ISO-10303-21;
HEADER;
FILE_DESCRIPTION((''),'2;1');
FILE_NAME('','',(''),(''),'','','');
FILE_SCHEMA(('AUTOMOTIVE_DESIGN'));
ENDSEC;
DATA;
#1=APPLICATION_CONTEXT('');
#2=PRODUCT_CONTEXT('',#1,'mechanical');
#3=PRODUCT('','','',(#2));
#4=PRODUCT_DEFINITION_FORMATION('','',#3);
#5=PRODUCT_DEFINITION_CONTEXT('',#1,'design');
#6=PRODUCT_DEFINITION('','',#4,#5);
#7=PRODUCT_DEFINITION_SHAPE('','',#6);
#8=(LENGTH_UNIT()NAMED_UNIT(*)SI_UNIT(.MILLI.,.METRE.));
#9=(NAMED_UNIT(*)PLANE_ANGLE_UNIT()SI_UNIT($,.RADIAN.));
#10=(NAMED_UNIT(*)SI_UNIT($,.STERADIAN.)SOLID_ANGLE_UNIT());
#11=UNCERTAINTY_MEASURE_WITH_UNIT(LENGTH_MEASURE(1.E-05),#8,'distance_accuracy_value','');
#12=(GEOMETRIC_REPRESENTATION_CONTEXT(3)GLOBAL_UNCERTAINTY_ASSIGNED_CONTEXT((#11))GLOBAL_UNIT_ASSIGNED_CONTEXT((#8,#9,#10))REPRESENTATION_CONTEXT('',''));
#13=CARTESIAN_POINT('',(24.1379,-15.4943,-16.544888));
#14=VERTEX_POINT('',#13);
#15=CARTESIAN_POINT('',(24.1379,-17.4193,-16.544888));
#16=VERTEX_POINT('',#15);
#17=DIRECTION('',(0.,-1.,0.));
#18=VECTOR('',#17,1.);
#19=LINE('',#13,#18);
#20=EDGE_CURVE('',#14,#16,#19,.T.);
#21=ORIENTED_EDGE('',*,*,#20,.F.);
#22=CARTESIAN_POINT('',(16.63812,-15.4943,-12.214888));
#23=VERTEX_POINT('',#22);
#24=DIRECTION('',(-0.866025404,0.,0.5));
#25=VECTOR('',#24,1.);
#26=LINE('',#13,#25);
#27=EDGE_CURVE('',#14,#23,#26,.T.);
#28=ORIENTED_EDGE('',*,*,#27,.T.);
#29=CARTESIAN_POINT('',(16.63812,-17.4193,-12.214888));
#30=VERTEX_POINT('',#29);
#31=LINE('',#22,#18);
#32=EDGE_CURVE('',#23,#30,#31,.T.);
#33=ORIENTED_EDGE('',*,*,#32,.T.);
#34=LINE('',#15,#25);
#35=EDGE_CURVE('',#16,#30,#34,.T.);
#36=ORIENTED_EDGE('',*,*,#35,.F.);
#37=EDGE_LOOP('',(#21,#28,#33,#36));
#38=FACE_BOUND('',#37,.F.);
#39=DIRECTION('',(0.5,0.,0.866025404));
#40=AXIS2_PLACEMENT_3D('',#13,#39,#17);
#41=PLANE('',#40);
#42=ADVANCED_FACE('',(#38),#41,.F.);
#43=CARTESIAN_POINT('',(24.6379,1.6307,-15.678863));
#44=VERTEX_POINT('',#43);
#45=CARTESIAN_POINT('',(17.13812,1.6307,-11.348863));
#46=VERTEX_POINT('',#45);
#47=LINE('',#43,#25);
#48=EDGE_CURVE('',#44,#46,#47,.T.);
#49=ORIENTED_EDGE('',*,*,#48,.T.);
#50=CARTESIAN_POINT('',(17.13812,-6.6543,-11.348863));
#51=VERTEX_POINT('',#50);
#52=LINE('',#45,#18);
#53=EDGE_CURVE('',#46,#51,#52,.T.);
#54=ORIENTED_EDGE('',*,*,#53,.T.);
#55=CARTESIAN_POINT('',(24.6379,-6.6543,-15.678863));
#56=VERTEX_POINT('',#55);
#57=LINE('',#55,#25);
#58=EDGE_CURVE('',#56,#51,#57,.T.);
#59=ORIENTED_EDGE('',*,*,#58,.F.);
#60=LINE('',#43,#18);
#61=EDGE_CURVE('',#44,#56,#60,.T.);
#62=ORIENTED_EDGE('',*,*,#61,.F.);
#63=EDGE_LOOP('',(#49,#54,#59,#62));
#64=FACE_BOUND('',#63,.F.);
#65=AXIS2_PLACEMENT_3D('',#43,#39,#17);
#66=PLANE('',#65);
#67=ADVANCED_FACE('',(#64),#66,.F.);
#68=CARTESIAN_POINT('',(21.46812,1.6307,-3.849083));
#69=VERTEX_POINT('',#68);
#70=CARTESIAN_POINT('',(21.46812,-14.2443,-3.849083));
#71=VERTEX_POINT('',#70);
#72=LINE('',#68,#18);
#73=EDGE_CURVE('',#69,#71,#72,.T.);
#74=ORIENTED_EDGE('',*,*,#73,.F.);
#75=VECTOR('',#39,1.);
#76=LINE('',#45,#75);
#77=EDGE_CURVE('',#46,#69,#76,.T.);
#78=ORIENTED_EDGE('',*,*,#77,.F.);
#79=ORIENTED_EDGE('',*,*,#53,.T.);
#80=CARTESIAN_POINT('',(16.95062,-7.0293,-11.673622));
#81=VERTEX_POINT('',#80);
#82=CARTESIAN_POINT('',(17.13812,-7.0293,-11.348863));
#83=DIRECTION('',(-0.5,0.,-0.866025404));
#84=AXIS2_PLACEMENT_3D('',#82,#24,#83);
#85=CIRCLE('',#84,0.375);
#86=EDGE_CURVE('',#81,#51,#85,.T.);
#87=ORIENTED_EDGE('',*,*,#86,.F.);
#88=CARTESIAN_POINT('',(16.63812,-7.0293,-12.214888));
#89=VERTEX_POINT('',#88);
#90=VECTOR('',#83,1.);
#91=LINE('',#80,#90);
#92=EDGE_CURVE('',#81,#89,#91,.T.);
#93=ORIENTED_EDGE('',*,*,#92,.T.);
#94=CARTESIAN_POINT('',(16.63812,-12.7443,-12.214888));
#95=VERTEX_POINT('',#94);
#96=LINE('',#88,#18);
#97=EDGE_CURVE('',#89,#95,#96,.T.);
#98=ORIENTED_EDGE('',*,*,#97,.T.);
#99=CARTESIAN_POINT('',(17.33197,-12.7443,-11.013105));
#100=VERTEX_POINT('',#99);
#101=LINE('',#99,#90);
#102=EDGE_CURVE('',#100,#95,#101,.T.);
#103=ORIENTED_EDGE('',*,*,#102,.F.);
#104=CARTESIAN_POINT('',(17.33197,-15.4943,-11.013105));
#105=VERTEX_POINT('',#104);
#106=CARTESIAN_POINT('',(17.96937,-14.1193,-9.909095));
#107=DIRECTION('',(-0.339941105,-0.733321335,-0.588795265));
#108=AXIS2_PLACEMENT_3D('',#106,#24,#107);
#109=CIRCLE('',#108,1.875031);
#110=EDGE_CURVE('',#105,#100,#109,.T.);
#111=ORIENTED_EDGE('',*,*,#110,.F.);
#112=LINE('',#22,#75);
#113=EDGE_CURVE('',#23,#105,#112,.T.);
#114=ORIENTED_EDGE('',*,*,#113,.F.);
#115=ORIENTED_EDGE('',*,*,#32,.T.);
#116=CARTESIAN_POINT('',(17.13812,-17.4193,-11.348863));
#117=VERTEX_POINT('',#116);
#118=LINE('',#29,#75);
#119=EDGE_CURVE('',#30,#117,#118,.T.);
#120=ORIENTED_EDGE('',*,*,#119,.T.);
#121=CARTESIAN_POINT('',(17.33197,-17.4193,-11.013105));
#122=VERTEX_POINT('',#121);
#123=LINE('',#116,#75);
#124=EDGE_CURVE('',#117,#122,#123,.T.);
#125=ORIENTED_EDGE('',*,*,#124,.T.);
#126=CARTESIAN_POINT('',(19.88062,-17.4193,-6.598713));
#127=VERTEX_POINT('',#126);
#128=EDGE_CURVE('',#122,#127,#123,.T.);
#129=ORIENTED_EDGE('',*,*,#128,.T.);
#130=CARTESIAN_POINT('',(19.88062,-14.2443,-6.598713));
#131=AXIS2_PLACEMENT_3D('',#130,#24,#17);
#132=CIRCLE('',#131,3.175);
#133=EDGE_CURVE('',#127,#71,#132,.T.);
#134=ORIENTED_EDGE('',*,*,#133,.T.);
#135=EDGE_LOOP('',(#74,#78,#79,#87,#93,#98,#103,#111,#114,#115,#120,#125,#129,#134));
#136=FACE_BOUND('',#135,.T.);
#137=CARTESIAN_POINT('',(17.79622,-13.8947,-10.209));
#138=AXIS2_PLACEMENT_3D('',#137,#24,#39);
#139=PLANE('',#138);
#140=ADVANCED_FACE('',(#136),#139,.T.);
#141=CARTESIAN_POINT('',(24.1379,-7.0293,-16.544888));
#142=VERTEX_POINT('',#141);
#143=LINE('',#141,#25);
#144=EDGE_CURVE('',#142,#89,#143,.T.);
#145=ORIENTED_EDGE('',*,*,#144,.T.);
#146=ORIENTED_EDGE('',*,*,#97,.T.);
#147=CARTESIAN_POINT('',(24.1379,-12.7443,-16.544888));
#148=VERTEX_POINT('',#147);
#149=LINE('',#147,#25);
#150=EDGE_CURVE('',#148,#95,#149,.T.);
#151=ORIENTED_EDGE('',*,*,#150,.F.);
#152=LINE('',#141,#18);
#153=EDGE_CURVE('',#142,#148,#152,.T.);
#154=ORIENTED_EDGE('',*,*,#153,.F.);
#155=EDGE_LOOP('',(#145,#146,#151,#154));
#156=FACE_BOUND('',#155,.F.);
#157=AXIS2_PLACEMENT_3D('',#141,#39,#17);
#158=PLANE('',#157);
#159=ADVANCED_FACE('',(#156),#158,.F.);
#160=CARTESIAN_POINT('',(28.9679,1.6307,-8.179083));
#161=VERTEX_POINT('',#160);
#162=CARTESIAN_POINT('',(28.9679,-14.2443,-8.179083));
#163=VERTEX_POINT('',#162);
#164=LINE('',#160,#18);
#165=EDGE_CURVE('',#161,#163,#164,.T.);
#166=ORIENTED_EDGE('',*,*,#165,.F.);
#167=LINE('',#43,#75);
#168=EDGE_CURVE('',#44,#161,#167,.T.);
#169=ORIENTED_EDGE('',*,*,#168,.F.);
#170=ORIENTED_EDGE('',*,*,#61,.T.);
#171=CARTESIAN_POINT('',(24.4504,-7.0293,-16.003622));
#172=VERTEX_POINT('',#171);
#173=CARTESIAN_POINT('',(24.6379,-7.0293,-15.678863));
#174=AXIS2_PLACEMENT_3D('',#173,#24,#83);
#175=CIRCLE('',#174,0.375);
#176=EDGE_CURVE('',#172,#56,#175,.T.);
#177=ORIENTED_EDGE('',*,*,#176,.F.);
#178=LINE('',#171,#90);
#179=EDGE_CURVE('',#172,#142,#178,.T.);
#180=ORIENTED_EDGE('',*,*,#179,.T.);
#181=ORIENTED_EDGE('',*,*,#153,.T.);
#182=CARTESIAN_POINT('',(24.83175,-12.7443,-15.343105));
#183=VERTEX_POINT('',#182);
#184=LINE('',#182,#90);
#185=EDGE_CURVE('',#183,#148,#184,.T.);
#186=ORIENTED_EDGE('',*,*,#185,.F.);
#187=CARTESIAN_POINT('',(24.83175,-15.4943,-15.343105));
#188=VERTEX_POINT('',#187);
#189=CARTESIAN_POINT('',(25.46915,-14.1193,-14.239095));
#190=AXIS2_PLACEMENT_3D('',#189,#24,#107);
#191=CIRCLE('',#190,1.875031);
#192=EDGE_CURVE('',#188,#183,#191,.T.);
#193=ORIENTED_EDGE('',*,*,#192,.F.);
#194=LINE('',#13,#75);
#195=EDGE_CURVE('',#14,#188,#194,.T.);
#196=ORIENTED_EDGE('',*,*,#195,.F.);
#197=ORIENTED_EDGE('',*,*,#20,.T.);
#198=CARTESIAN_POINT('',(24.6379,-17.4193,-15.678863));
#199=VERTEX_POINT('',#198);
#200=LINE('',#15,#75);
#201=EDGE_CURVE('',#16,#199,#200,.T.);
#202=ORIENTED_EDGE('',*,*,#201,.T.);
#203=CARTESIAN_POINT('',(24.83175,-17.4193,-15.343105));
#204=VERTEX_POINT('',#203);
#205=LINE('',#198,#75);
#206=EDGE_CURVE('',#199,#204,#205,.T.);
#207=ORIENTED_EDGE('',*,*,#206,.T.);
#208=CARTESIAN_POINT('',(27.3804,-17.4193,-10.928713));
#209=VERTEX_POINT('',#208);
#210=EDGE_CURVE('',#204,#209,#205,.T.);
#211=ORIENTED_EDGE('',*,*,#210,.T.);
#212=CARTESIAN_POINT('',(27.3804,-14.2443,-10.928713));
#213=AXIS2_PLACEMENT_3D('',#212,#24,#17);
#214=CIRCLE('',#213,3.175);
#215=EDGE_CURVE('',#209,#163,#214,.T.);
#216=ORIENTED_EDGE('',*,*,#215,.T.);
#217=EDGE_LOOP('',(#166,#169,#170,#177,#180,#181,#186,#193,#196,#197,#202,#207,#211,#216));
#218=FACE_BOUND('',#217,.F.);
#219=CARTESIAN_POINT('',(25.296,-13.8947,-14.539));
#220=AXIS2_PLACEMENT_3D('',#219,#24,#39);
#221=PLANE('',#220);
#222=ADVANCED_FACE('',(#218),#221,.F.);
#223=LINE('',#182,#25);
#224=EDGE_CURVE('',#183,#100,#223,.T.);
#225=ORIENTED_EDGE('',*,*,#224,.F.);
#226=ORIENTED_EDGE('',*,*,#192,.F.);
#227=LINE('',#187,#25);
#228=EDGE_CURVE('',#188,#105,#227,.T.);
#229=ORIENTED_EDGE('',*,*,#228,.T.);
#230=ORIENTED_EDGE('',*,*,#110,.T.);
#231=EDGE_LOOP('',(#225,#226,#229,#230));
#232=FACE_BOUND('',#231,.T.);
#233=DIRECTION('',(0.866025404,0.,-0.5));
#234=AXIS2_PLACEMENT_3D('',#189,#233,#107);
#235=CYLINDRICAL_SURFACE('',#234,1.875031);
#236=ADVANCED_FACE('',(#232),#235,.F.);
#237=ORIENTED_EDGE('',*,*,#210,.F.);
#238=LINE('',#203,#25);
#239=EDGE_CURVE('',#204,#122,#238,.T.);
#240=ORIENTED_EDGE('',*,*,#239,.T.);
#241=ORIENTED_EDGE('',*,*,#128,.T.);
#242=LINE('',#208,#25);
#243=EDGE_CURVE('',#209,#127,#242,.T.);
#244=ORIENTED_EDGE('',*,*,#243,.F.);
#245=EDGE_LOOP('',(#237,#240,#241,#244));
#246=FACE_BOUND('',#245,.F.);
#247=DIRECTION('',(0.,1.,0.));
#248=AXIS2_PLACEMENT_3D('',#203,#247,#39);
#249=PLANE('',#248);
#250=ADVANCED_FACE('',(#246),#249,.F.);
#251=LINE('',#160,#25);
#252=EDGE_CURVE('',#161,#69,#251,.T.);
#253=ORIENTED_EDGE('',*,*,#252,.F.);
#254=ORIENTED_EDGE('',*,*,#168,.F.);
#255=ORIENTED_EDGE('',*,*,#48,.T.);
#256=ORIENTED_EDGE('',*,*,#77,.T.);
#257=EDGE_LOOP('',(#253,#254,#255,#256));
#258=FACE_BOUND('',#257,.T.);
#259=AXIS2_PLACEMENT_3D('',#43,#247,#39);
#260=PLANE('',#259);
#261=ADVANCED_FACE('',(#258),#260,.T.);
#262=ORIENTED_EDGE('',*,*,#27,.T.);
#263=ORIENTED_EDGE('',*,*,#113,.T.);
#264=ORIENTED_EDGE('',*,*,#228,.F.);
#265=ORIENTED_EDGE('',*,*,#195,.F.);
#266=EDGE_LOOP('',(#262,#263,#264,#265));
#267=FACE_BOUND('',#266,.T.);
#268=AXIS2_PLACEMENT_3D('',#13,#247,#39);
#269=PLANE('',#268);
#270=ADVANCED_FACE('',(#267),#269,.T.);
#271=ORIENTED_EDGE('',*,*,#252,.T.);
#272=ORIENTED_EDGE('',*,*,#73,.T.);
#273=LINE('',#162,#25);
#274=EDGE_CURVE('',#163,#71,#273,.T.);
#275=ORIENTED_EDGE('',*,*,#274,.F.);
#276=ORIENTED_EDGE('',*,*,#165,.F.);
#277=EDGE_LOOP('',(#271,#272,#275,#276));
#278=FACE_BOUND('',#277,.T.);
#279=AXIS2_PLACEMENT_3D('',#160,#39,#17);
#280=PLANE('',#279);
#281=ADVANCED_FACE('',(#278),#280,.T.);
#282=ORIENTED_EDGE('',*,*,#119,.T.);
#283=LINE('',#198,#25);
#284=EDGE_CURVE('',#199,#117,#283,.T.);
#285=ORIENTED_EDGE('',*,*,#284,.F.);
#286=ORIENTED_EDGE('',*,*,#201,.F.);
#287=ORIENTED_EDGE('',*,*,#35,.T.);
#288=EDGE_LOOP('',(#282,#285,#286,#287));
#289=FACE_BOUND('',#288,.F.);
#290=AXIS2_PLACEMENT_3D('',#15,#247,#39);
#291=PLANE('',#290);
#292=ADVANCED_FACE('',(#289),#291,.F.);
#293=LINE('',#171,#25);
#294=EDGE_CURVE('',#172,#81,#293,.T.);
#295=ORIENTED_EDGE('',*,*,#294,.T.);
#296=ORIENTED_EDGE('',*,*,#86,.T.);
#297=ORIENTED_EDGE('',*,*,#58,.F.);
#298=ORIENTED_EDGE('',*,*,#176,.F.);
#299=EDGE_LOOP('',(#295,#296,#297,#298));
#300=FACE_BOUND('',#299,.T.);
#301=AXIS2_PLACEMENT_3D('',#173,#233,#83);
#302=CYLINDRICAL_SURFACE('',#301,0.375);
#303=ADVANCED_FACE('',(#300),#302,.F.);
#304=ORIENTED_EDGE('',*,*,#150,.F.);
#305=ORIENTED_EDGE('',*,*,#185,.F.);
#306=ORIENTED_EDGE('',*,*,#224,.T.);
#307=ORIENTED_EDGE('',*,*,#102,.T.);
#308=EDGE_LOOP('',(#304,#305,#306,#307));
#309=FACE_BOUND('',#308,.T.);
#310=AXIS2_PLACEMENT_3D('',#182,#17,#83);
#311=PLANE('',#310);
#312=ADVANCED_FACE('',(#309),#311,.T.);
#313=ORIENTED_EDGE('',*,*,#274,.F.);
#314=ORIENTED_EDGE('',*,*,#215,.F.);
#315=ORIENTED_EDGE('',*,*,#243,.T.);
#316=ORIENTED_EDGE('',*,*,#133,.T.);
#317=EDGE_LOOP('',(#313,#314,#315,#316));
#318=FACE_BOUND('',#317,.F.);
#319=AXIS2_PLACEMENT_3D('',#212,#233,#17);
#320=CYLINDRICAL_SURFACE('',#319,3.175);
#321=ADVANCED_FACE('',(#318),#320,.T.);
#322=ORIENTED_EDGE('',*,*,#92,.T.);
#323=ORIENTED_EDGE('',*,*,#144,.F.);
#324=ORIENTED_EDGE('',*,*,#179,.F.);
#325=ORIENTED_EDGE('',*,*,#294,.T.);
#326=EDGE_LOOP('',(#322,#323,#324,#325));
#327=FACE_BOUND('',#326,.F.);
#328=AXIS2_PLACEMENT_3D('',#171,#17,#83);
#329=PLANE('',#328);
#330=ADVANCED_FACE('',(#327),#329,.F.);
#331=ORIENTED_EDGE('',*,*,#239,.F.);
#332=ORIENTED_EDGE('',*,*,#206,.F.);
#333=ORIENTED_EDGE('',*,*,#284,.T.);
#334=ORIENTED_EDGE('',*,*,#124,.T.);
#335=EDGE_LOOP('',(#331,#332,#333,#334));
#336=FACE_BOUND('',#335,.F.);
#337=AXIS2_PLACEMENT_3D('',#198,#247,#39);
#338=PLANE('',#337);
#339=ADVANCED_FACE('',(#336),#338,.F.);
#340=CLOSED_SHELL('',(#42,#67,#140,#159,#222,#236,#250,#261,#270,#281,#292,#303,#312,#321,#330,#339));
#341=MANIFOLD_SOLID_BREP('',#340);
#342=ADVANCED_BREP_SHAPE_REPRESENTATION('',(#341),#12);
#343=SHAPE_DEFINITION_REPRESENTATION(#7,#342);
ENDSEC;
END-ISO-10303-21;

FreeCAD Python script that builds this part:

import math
import FreeCAD as App
import Part
import Sketcher
Q = App.Units.Quantity

doc = App.newDocument("Part")
params = doc.addObject("Spreadsheet::Sheet", "Params")
for row, (alias, value) in enumerate([
    ("sketch1_radius", "0.125 in"),
    ("sketch1_height", "0.225 in"),
    ("pad1_length", "8.66 mm"),
], start=1):
    params.set(f"A{row}", alias)
    params.set(f"B{row}", "=" + value)
    params.setAlias(f"B{row}", alias)

body = doc.addObject("PartDesign::Body", "Body")

sketch1 = doc.addObject("Sketcher::SketchObject", "Sketch")
body.addObject(sketch1)
sketch1.Placement = App.Placement(App.Vector(25.296, -13.8947, -14.539), App.Rotation(App.Vector(0.5, 0, 0.866025404), App.Vector(0, 1, 0), App.Vector(-0.866025404, 0, 0.5), "ZXY"))
sketch1.addGeometry(Part.LineSegment(App.Vector(-2.3162, -3.5246, 0), App.Vector(4.1688, -3.5246, 0)), False)
sketch1.addGeometry(Part.ArcOfCircle(Part.Circle(App.Vector(4.1688, -0.3496, 0), App.Vector(0, 0, 1), 3.175), math.radians(-90), math.radians(0)), False)
sketch1.addGeometry(Part.LineSegment(App.Vector(7.3438, -0.3496, 0), App.Vector(7.3438, 15.5254, 0)), False)
sketch1.addGeometry(Part.LineSegment(App.Vector(7.3438, 15.5254, 0), App.Vector(-1.3162, 15.5254, 0)), False)
sketch1.addGeometry(Part.LineSegment(App.Vector(-1.3162, 15.5254, 0), App.Vector(-1.3162, 7.2404, 0)), False)
sketch1.addGeometry(Part.ArcOfCircle(Part.Circle(App.Vector(-1.3162, 6.8654, 0), App.Vector(0, 0, 1), 0.375), math.radians(180), math.radians(450)), False)
sketch1.addGeometry(Part.LineSegment(App.Vector(-1.6912, 6.8654, 0), App.Vector(-2.3162, 6.8654, 0)), False)
sketch1.addGeometry(Part.LineSegment(App.Vector(-2.3162, 6.8654, 0), App.Vector(-2.3162, 1.1504, 0)), False)
sketch1.addGeometry(Part.LineSegment(App.Vector(-2.3162, 1.1504, 0), App.Vector(-0.9285, 1.1504, 0)), False)
sketch1.addGeometry(Part.ArcOfCircle(Part.Circle(App.Vector(0.3463, -0.2246, 0), App.Vector(0, 0, 1), 1.875031), math.radians(-132.834439), math.radians(132.834439)), False)
sketch1.addGeometry(Part.LineSegment(App.Vector(-0.9285, -1.5996, 0), App.Vector(-2.3162, -1.5996, 0)), False)
sketch1.addGeometry(Part.LineSegment(App.Vector(-2.3162, -1.5996, 0), App.Vector(-2.3162, -3.5246, 0)), False)
sketch1.addConstraint(Sketcher.Constraint("Tangent", 0, 2, 1, 1))
sketch1.addConstraint(Sketcher.Constraint("Tangent", 1, 2, 2, 1))
sketch1.addConstraint(Sketcher.Constraint("Coincident", 2, 2, 3, 1))
sketch1.addConstraint(Sketcher.Constraint("Coincident", 3, 2, 4, 1))
sketch1.addConstraint(Sketcher.Constraint("Coincident", 4, 2, 5, 2))
sketch1.addConstraint(Sketcher.Constraint("Coincident", 5, 1, 6, 1))
sketch1.addConstraint(Sketcher.Constraint("Coincident", 6, 2, 7, 1))
sketch1.addConstraint(Sketcher.Constraint("Coincident", 7, 2, 8, 1))
sketch1.addConstraint(Sketcher.Constraint("Coincident", 8, 2, 9, 2))
sketch1.addConstraint(Sketcher.Constraint("Coincident", 9, 1, 10, 1))
sketch1.addConstraint(Sketcher.Constraint("Coincident", 10, 2, 11, 1))
sketch1.addConstraint(Sketcher.Constraint("Coincident", 11, 2, 0, 1))
sketch1.addConstraint(Sketcher.Constraint("Horizontal", 0))
sketch1.addConstraint(Sketcher.Constraint("Vertical", 2))
sketch1.addConstraint(Sketcher.Constraint("Horizontal", 3))
sketch1.addConstraint(Sketcher.Constraint("Vertical", 4))
sketch1.addConstraint(Sketcher.Constraint("Horizontal", 6))
sketch1.addConstraint(Sketcher.Constraint("Vertical", 7))
sketch1.addConstraint(Sketcher.Constraint("Horizontal", 8))
sketch1.addConstraint(Sketcher.Constraint("Horizontal", 10))
sketch1.addConstraint(Sketcher.Constraint("Vertical", 11))
sketch1.addConstraint(Sketcher.Constraint("Vertical", 5, 3, 3, 2))
sketch1.addConstraint(Sketcher.Constraint("Vertical", 8, 2, 9, 1))
sketch1.addConstraint(Sketcher.Constraint("Vertical", 7, 2, 10, 2))
sketch1.addConstraint(Sketcher.Constraint("Radius", 1, Q("0.125 in")))
sketch1.addConstraint(Sketcher.Constraint("Radius", 5, 0.375))
sketch1.addConstraint(Sketcher.Constraint("Radius", 9, 1.875))
sketch1.addConstraint(Sketcher.Constraint("DistanceY", 0, 2, 2, 2, Q("0.75 in")))
sketch1.addConstraint(Sketcher.Constraint("DistanceX", 3, 2, 3, 1, 8.66))
sketch1.addConstraint(Sketcher.Constraint("DistanceY", 7, 2, 7, 1, Q("0.225 in")))
sketch1.addConstraint(Sketcher.Constraint("DistanceY", 5, 3, 2, 2, 8.66))
sketch1.addConstraint(Sketcher.Constraint("DistanceY", 9, 3, 2, 2, 15.75))
sketch1.addConstraint(Sketcher.Constraint("DistanceY", 5, 1, 3, 2, 8.66))
sketch1.addConstraint(Sketcher.Constraint("DistanceX", 6, 2, 5, 3, 1.0))
sketch1.addConstraint(Sketcher.Constraint("DistanceX", 8, 1, 8, 2, 1.3877))
sketch1.addConstraint(Sketcher.Constraint("DistanceY", -1, 1, 5, 3, Q("0.2703 in")))
sketch1.addConstraint(Sketcher.Constraint("DistanceX", 6, 2, -1, 1, Q("0.0912 in")))
sketch1.setExpression("Constraints[24]", "Params.sketch1_radius")
sketch1.setExpression("Constraints[29]", "Params.sketch1_height")
pad1 = doc.addObject("PartDesign::Pad", "Pad")
body.addObject(pad1)
pad1.Profile = sketch1
pad1.setExpression("Length", "Params.pad1_length")

doc.recompute()
